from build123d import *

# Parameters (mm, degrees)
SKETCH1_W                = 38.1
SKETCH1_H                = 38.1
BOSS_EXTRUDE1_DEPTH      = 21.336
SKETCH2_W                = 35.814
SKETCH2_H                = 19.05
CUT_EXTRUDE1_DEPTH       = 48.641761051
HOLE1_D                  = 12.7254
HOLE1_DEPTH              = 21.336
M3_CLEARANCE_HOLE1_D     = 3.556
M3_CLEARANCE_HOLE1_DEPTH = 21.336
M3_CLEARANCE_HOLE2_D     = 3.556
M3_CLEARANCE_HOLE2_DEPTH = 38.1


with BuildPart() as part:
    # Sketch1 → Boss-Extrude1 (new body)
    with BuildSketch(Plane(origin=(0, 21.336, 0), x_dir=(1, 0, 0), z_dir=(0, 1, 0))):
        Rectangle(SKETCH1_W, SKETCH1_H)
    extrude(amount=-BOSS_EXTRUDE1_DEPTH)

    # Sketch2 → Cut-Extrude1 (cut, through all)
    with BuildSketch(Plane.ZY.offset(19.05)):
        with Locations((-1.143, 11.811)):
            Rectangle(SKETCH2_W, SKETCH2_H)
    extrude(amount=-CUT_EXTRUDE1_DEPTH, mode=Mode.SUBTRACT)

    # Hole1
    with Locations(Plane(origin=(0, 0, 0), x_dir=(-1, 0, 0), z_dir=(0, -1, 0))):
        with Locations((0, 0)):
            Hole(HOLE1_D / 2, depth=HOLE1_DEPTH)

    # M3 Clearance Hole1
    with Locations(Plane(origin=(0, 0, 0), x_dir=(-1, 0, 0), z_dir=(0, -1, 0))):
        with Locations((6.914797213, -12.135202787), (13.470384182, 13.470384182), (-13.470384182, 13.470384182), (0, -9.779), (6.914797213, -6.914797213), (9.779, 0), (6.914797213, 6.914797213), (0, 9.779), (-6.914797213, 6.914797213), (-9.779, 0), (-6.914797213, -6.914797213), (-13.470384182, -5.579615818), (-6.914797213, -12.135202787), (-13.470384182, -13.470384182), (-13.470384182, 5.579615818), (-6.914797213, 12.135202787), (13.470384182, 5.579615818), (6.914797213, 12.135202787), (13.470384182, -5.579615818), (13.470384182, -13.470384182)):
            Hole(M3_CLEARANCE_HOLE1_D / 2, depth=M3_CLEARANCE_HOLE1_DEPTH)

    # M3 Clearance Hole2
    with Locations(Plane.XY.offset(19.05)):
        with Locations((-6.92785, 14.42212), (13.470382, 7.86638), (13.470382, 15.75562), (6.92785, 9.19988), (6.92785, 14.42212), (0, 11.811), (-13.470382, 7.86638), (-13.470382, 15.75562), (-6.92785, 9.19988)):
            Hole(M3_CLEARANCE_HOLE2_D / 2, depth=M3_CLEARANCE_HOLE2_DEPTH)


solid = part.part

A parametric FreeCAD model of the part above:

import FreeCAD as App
import Part
import Sketcher
Q = App.Units.Quantity

doc = App.newDocument("Part")
body = doc.addObject("PartDesign::Body", "Body")

# Sketch on XZ plane
sketch1 = doc.addObject("Sketcher::SketchObject", "Sketch")
body.addObject(sketch1)
sketch1.AttachmentSupport = (doc.XZ_Plane, [""])
sketch1.MapMode = "FlatFace"
sketch1.AttachmentOffset = App.Placement(App.Vector(0, 0, -0.84 * 25.4), App.Rotation())
sketch1.addGeometry([
    Part.LineSegment(App.Vector(-19, -19, 0), App.Vector(-19, 19, 0)),
    Part.LineSegment(App.Vector(-19, 19, 0), App.Vector(19, 19, 0)),
    Part.LineSegment(App.Vector(19, 19, 0), App.Vector(19, -19, 0)),
    Part.LineSegment(App.Vector(19, -19, 0), App.Vector(-19, -19, 0)),
], False)
sketch1.addConstraint([
    Sketcher.Constraint("Coincident", 0, 2, 1, 1),
    Sketcher.Constraint("Coincident", 1, 2, 2, 1),
    Sketcher.Constraint("Coincident", 2, 2, 3, 1),
    Sketcher.Constraint("Coincident", 3, 2, 0, 1),
    Sketcher.Constraint("Vertical", 0),
    Sketcher.Constraint("Horizontal", 1),
    Sketcher.Constraint("Vertical", 2),
    Sketcher.Constraint("Horizontal", 3),
    Sketcher.Constraint("Symmetric", 0, 2, 2, 2, -1, 1),
    Sketcher.Constraint("Equal", 3, 0),
    Sketcher.Constraint("DistanceX", 1, 1, 1, 2, Q("1.5 in")),
])
pad1 = doc.addObject("PartDesign::Pad", "Pad")
body.addObject(pad1)
pad1.Profile = sketch1
pad1.Length = Q("0.84 in")

# Sketch on YZ plane
sketch2 = doc.addObject("Sketcher::SketchObject", "Sketch001")
body.addObject(sketch2)
sketch2.AttachmentSupport = (doc.YZ_Plane, [""])
sketch2.MapMode = "FlatFace"
sketch2.AttachmentOffset = App.Placement(App.Vector(0, 0, -0.75 * 25.4), App.Rotation())
sketch2.addGeometry([
    Part.LineSegment(App.Vector(21, -19, 0), App.Vector(2, -19, 0)),
    Part.LineSegment(App.Vector(2, -19, 0), App.Vector(2, 17, 0)),
    Part.LineSegment(App.Vector(2, 17, 0), App.Vector(21, 17, 0)),
    Part.LineSegment(App.Vector(21, 17, 0), App.Vector(21, -19, 0)),
], False)
sketch2.addConstraint([
    Sketcher.Constraint("Coincident", 0, 2, 1, 1),
    Sketcher.Constraint("Coincident", 1, 2, 2, 1),
    Sketcher.Constraint("Coincident", 2, 2, 3, 1),
    Sketcher.Constraint("Coincident", 3, 2, 0, 1),
    Sketcher.Constraint("Horizontal", 0),
    Sketcher.Constraint("Vertical", 1),
    Sketcher.Constraint("Horizontal", 2),
    Sketcher.Constraint("Vertical", 3),
    Sketcher.Constraint("DistanceX", 0, 2, 0, 1, Q("0.75 in")),
    Sketcher.Constraint("DistanceY", 1, 1, 1, 2, Q("1.41 in")),
    Sketcher.Constraint("DistanceX", -1, 1, 0, 2, Q("0.09 in")),
    Sketcher.Constraint("DistanceY", 0, 2, -1, 1, Q("0.75 in")),
])
pocket1 = doc.addObject("PartDesign::Pocket", "Pocket")
body.addObject(pocket1)
pocket1.Profile = sketch2
pocket1.Type = "ThroughAll"
pocket1.Reversed = True

# Sketch on XZ plane
sketch3 = doc.addObject("Sketcher::SketchObject", "Sketch002")
body.addObject(sketch3)
sketch3.AttachmentSupport = (doc.XZ_Plane, [""])
sketch3.MapMode = "FlatFace"
sketch3.addGeometry(Part.Circle(App.Vector(0, 0, 0), App.Vector(0, 0, 1), 6), False)
sketch3.addConstraint([
    Sketcher.Constraint("Coincident", 0, 3, -1, 1),
    Sketcher.Constraint("Diameter", 0, Q("0.501 in")),
])
doc.recompute()
hole = doc.addObject("PartDesign::Hole", "Hole")
body.addObject(hole)
hole.Profile = sketch3
hole.ThreadType = "None"
hole.Diameter = Q("0.501 in")
hole.DepthType = "Dimension"
hole.Depth = Q("0.84 in")
hole.DrillPoint = "Flat"

# Sketch on XZ plane
sketch4 = doc.addObject("Sketcher::SketchObject", "Sketch003")
body.addObject(sketch4)
sketch4.AttachmentSupport = (doc.XZ_Plane, [""])
sketch4.MapMode = "FlatFace"
sketch4.addGeometry([
    Part.Circle(App.Vector(-6.9, 12.1, 0), App.Vector(0, 0, 1), 1.8),  # 0
    Part.Circle(App.Vector(-13.5, -13.5, 0), App.Vector(0, 0, 1), 1.8),  # 1
    Part.Circle(App.Vector(13.5, -13.5, 0), App.Vector(0, 0, 1), 1.8),  # 2
    Part.Circle(App.Vector(0, 9.8, 0), App.Vector(0, 0, 1), 1.8),  # 3
    Part.Circle(App.Vector(-6.9, 6.9, 0), App.Vector(0, 0, 1), 1.8),  # 4
    Part.Circle(App.Vector(-9.8, 0, 0), App.Vector(0, 0, 1), 1.8),  # 5
    Part.Circle(App.Vector(-6.9, -6.9, 0), App.Vector(0, 0, 1), 1.8),  # 6
    Part.Circle(App.Vector(0, -9.8, 0), App.Vector(0, 0, 1), 1.8),  # 7
    Part.Circle(App.Vector(6.9, -6.9, 0), App.Vector(0, 0, 1), 1.8),  # 8
    Part.Circle(App.Vector(9.8, 0, 0), App.Vector(0, 0, 1), 1.8),  # 9
    Part.Circle(App.Vector(6.9, 6.9, 0), App.Vector(0, 0, 1), 1.8),  # 10
    Part.Circle(App.Vector(13.5, 5.6, 0), App.Vector(0, 0, 1), 1.8),  # 11
    Part.Circle(App.Vector(6.9, 12.1, 0), App.Vector(0, 0, 1), 1.8),  # 12
    Part.Circle(App.Vector(13.5, 13.5, 0), App.Vector(0, 0, 1), 1.8),  # 13
    Part.Circle(App.Vector(13.5, -5.6, 0), App.Vector(0, 0, 1), 1.8),  # 14
    Part.Circle(App.Vector(6.9, -12.1, 0), App.Vector(0, 0, 1), 1.8),  # 15
    Part.Circle(App.Vector(-13.5, -5.6, 0), App.Vector(0, 0, 1), 1.8),  # 16
    Part.Circle(App.Vector(-6.9, -12.1, 0), App.Vector(0, 0, 1), 1.8),  # 17
    Part.Circle(App.Vector(-13.5, 5.6, 0), App.Vector(0, 0, 1), 1.8),  # 18
    Part.Circle(App.Vector(-13.5, 13.5, 0), App.Vector(0, 0, 1), 1.8),  # 19
], False)
sketch4.addConstraint([
    Sketcher.Constraint("Equal", 0, 1),
    Sketcher.Constraint("Equal", 1, 2),
    Sketcher.Constraint("Equal", 2, 3),
    Sketcher.Constraint("Equal", 3, 4),
    Sketcher.Constraint("Equal", 4, 5),
    Sketcher.Constraint("Equal", 5, 6),
    Sketcher.Constraint("Equal", 6, 7),
    Sketcher.Constraint("Equal", 7, 8),
    Sketcher.Constraint("Equal", 8, 9),
    Sketcher.Constraint("Equal", 9, 10),
    Sketcher.Constraint("Equal", 10, 11),
    Sketcher.Constraint("Equal", 11, 12),
    Sketcher.Constraint("Equal", 12, 13),
    Sketcher.Constraint("Equal", 13, 14),
    Sketcher.Constraint("Equal", 14, 15),
    Sketcher.Constraint("Equal", 15, 16),
    Sketcher.Constraint("Equal", 16, 17),
    Sketcher.Constraint("Equal", 17, 18),
    Sketcher.Constraint("Equal", 18, 19),
    Sketcher.Constraint("Symmetric", 3, 3, 7, 3, -1, 1),
    Sketcher.Constraint("Symmetric", 4, 3, 8, 3, -1, 1),
    Sketcher.Constraint("Symmetric", 5, 3, 9, 3, -1, 1),
    Sketcher.Constraint("Symmetric", 6, 3, 10, 3, -1, 1),
    Sketcher.Constraint("Symmetric", 1, 3, 13, 3, -1, 1),
    Sketcher.Constraint("Symmetric", 0, 3, 15, 3, -1, 1),
    Sketcher.Constraint("Symmetric", 11, 3, 16, 3, -1, 1),
    Sketcher.Constraint("Symmetric", 12, 3, 17, 3, -1, 1),
    Sketcher.Constraint("Symmetric", 14, 3, 18, 3, -1, 1),
    Sketcher.Constraint("Symmetric", 2, 3, 19, 3, -1, 1),
    Sketcher.Constraint("Symmetric", 1, 3, 2, 3, -2),
    Sketcher.Constraint("Symmetric", 6, 3, 8, 3, -2),
    Sketcher.Constraint("Symmetric", 0, 3, 12, 3, -2),
    Sketcher.Constraint("Symmetric", 14, 3, 16, 3, -2),
    Sketcher.Constraint("PointOnObject", 3, 3, -2),
    Sketcher.Constraint("PointOnObject", 5, 3, -1),
    Sketcher.Constraint("Vertical", 0, 3, 4, 3),
    Sketcher.Constraint("Vertical", 2, 3, 11, 3),
    Sketcher.Constraint("Diameter", 0, Q("0.14 in")),
    Sketcher.Constraint("DistanceY", 6, 3, 0, 3, Q("0.75 in")),
    Sketcher.Constraint("DistanceY", 2, 3, 11, 3, Q("0.75 in")),
    Sketcher.Constraint("DistanceY", -1, 1, 3, 3, Q("0.385 in")),
    Sketcher.Constraint("DistanceX", 5, 3, -1, 1, Q("0.385 in")),
    Sketcher.Constraint("DistanceX", 1, 3, 2, 3, Q("26.940768 mm")),
    Sketcher.Constraint("DistanceX", 0, 3, 2, 3, Q("20.385181 mm")),
    Sketcher.Constraint("DistanceY", 1, 3, 4, 3, Q("20.385181 mm")),
    Sketcher.Constraint("DistanceY", 11, 3, 13, 3, Q("7.890768 mm")),
])
doc.recompute()
hole2 = doc.addObject("PartDesign::Hole", "Hole001")
body.addObject(hole2)
hole2.Profile = sketch4
hole2.ThreadType = "None"
hole2.Diameter = Q("0.14 in")
hole2.DepthType = "Dimension"
hole2.Depth = Q("0.84 in")
hole2.DrillPoint = "Flat"

# Sketch on XY plane
sketch5 = doc.addObject("Sketcher::SketchObject", "Sketch004")
body.addObject(sketch5)
sketch5.AttachmentSupport = (doc.XY_Plane, [""])
sketch5.MapMode = "FlatFace"
sketch5.AttachmentOffset = App.Placement(App.Vector(0, 0, 0.75 * 25.4), App.Rotation())
sketch5.addGeometry([
    Part.Circle(App.Vector(-6.9, 14.4, 0), App.Vector(0, 0, 1), 1.8),  # 0
    Part.Circle(App.Vector(13.5, 7.9, 0), App.Vector(0, 0, 1), 1.8),  # 1
    Part.Circle(App.Vector(13.5, 15.8, 0), App.Vector(0, 0, 1), 1.8),  # 2
    Part.Circle(App.Vector(6.9, 9.2, 0), App.Vector(0, 0, 1), 1.8),  # 3
    Part.Circle(App.Vector(6.9, 14.4, 0), App.Vector(0, 0, 1), 1.8),  # 4
    Part.Circle(App.Vector(0, 11.8, 0), App.Vector(0, 0, 1), 1.8),  # 5
    Part.Circle(App.Vector(-13.5, 7.9, 0), App.Vector(0, 0, 1), 1.8),  # 6
    Part.Circle(App.Vector(-13.5, 15.8, 0), App.Vector(0, 0, 1), 1.8),  # 7
    Part.Circle(App.Vector(-6.9, 9.2, 0), App.Vector(0, 0, 1), 1.8),  # 8
], False)
sketch5.addConstraint([
    Sketcher.Constraint("Equal", 0, 1),
    Sketcher.Constraint("Equal", 1, 2),
    Sketcher.Constraint("Equal", 2, 3),
    Sketcher.Constraint("Equal", 3, 4),
    Sketcher.Constraint("Equal", 4, 5),
    Sketcher.Constraint("Equal", 5, 6),
    Sketcher.Constraint("Equal", 6, 7),
    Sketcher.Constraint("Equal", 7, 8),
    Sketcher.Constraint("Symmetric", 0, 3, 4, 3, -2),
    Sketcher.Constraint("Symmetric", 1, 3, 6, 3, -2),
    Sketcher.Constraint("Symmetric", 2, 3, 7, 3, -2),
    Sketcher.Constraint("Symmetric", 3, 3, 8, 3, -2),
    Sketcher.Constraint("PointOnObject", 5, 3, -2),
    Sketcher.Constraint("Vertical", 1, 3, 2, 3),
    Sketcher.Constraint("Vertical", 3, 3, 4, 3),
    Sketcher.Constraint("Diameter", 0, Q("0.14 in")),
    Sketcher.Constraint("DistanceY", -1, 1, 5, 3, Q("0.465 in")),
    Sketcher.Constraint("DistanceY", -1, 1, 0, 3, Q("0.5678 in")),
    Sketcher.Constraint("DistanceY", -1, 1, 1, 3, Q("0.3097 in")),
    Sketcher.Constraint("DistanceY", -1, 1, 2, 3, Q("0.6203 in")),
    Sketcher.Constraint("DistanceY", -1, 1, 3, 3, Q("0.3622 in")),
    Sketcher.Constraint("DistanceX", 0, 3, 3, 3, Q("0.5455 in")),
    Sketcher.Constraint("DistanceX", 0, 3, 1, 3, Q("20.398232 mm")),
])
doc.recompute()
hole3 = doc.addObject("PartDesign::Hole", "Hole002")
body.addObject(hole3)
hole3.Profile = sketch5
hole3.ThreadType = "None"
hole3.Diameter = Q("0.14 in")
hole3.DepthType = "Dimension"
hole3.Depth = Q("1.5 in")
hole3.DrillPoint = "Flat"

doc.recompute()
